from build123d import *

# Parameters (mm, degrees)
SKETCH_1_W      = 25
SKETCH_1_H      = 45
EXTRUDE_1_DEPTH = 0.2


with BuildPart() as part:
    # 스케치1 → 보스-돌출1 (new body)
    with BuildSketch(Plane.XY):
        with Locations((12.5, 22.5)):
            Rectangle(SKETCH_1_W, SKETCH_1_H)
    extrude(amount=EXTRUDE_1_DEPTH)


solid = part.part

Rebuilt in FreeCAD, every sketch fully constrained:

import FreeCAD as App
import Part
import Sketcher
from FreeCAD import Vector

doc = App.newDocument("Part")
body = doc.addObject("PartDesign::Body", "Body")

sketch1 = body.newObject("Sketcher::SketchObject", "Sketch")
sketch1.AttachmentSupport = (doc.getObject("XY_Plane"), [""])
sketch1.MapMode = "FlatFace"
sketch1.addGeometry([
    Part.LineSegment(Vector(0, 45, 0), Vector(0, 0, 0)),
    Part.LineSegment(Vector(0, 0, 0), Vector(25, 0, 0)),
    Part.LineSegment(Vector(25, 0, 0), Vector(25, 45, 0)),
    Part.LineSegment(Vector(25, 45, 0), Vector(0, 45, 0)),
], False)
sketch1.addConstraint([
    Sketcher.Constraint("Coincident", 0, 2, 1, 1),
    Sketcher.Constraint("Coincident", 1, 2, 2, 1),
    Sketcher.Constraint("Coincident", 2, 2, 3, 1),
    Sketcher.Constraint("Coincident", 3, 2, 0, 1),
    Sketcher.Constraint("Vertical", 0),
    Sketcher.Constraint("Horizontal", 1),
    Sketcher.Constraint("Vertical", 2),
    Sketcher.Constraint("Horizontal", 3),
    Sketcher.Constraint("Coincident", 0, 2, -1, 1),
    Sketcher.Constraint("DistanceX", 1, 1, 1, 2, 25.0),
    Sketcher.Constraint("DistanceY", 0, 2, 0, 1, 45.0),
])
pad1 = body.newObject("PartDesign::Pad", "Pad")
pad1.Profile = sketch1
pad1.Length = 0.2

doc.recompute()
